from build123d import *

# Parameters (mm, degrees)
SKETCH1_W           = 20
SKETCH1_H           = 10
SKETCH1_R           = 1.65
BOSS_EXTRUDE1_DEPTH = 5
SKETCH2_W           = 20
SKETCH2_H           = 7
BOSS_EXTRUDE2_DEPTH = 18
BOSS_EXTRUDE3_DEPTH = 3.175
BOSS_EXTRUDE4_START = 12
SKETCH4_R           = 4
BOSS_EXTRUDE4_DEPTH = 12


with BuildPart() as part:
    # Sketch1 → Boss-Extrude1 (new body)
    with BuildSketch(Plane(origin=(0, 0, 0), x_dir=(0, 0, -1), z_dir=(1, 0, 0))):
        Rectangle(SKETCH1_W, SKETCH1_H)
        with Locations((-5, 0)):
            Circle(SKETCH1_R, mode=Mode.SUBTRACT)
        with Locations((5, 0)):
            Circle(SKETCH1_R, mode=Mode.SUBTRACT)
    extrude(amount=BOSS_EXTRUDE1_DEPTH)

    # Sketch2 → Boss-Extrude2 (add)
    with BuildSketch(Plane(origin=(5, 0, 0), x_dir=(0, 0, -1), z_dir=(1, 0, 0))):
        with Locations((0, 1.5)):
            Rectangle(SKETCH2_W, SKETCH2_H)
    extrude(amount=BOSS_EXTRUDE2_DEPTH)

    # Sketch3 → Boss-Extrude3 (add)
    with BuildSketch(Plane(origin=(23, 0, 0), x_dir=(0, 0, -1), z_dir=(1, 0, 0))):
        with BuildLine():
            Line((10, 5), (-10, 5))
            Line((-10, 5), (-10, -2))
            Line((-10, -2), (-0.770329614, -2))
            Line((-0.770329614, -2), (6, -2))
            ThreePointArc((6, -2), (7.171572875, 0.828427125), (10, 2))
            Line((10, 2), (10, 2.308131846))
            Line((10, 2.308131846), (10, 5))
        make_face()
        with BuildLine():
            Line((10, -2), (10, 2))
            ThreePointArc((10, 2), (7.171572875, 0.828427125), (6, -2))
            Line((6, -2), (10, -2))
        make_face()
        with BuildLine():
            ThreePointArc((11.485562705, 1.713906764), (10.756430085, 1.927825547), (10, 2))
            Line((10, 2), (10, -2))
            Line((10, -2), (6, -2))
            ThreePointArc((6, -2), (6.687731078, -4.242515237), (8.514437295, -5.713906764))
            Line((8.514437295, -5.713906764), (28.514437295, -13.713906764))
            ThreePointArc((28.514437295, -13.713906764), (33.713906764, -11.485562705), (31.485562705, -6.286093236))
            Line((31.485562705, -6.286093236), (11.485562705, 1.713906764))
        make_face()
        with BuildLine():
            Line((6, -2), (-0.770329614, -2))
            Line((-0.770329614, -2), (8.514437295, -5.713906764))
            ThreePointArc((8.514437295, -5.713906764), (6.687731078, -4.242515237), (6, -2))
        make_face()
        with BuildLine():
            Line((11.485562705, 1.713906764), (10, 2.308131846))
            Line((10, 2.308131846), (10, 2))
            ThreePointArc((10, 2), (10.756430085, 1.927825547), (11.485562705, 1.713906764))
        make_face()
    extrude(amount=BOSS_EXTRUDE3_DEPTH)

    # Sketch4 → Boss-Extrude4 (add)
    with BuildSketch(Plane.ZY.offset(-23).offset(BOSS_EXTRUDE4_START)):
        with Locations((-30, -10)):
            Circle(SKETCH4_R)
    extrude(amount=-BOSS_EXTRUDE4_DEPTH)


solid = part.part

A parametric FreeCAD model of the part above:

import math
import FreeCAD as App
import Part
import Sketcher

V = App.Vector
Q = App.Units.Quantity


def add_polygon(sketch, points):
    """Adds a closed chain of lines whose ends are joined by coincident constraints."""
    first, n = sketch.GeometryCount, len(points)
    for a, b in zip(points, points[1:] + points[:1]):
        sketch.addGeometry(Part.LineSegment(App.Vector(*a, 0), App.Vector(*b, 0)), False)
    for i in range(n):
        sketch.addConstraint(Sketcher.Constraint("Coincident", first + i, 2, first + (i + 1) % n, 1))

doc = App.newDocument("Part")
body = doc.addObject("PartDesign::Body", "Body")

# Sketch on YZ plane
sketch1 = body.newObject("Sketcher::SketchObject", "Sketch")
sketch1.AttachmentSupport = (doc.getObject("YZ_Plane"), [""])
sketch1.MapMode = "FlatFace"
add_polygon(sketch1, [(5, 10), (-5, 10), (-5, -10), (5, -10)])  # lines 0-3
sketch1.addGeometry(Part.Circle(V(0, 5, 0), V(0, 0, 1), 1.6), False)  # 4
sketch1.addGeometry(Part.Circle(V(0, -5, 0), V(0, 0, 1), 1.6), False)  # 5
sketch1.addConstraint(Sketcher.Constraint("Horizontal", 0))
sketch1.addConstraint(Sketcher.Constraint("Vertical", 1))
sketch1.addConstraint(Sketcher.Constraint("Horizontal", 2))
sketch1.addConstraint(Sketcher.Constraint("Vertical", 3))
sketch1.addConstraint(Sketcher.Constraint("Equal", 4, 5))
sketch1.addConstraint(Sketcher.Constraint("Symmetric", 4, 3, 5, 3, -1, 1))
sketch1.addConstraint(Sketcher.Constraint("Symmetric", 0, 2, 2, 2, -1, 1))
sketch1.addConstraint(Sketcher.Constraint("PointOnObject", 4, 3, -2))
sketch1.addConstraint(Sketcher.Constraint("Diameter", 4, Q("3.3 mm")))
sketch1.addConstraint(Sketcher.Constraint("DistanceX", 0, 2, 0, 1, Q("10 mm")))
sketch1.addConstraint(Sketcher.Constraint("DistanceY", 1, 2, 1, 1, Q("20 mm")))
sketch1.addConstraint(Sketcher.Constraint("DistanceY", -1, 1, 4, 3, Q("5 mm")))
pad1 = body.newObject("PartDesign::Pad", "Pad")
pad1.Profile = sketch1
pad1.Length = 5

# Sketch on YZ plane
sketch2 = body.newObject("Sketcher::SketchObject", "Sketch001")
sketch2.AttachmentSupport = (doc.getObject("YZ_Plane"), [""])
sketch2.MapMode = "FlatFace"
sketch2.AttachmentOffset = App.Placement(V(0, 0, 5), App.Rotation())
add_polygon(sketch2, [(5, 10), (-2, 10), (-2, -10), (5, -10)])  # lines 0-3
sketch2.addConstraint(Sketcher.Constraint("Horizontal", 0))
sketch2.addConstraint(Sketcher.Constraint("Vertical", 1))
sketch2.addConstraint(Sketcher.Constraint("Horizontal", 2))
sketch2.addConstraint(Sketcher.Constraint("Vertical", 3))
sketch2.addConstraint(Sketcher.Constraint("DistanceX", 0, 2, 0, 1, Q("7 mm")))
sketch2.addConstraint(Sketcher.Constraint("DistanceY", 1, 2, 1, 1, Q("20 mm")))
sketch2.addConstraint(Sketcher.Constraint("DistanceX", 0, 2, -1, 1, Q("2 mm")))
sketch2.addConstraint(Sketcher.Constraint("DistanceY", -1, 1, 0, 2, Q("10 mm")))
pad2 = body.newObject("PartDesign::Pad", "Pad001")
pad2.Profile = sketch2
pad2.Length = 18

# Sketch on YZ plane
sketch3 = body.newObject("Sketcher::SketchObject", "Sketch002")
sketch3.AttachmentSupport = (doc.getObject("YZ_Plane"), [""])
sketch3.MapMode = "FlatFace"
sketch3.AttachmentOffset = App.Placement(V(0, 0, 23), App.Rotation())
sketch3.addGeometry(Part.LineSegment(V(5, -10, 0), V(5, 10, 0)), False)
sketch3.addGeometry(Part.LineSegment(V(5, 10, 0), V(-2, 10, 0)), False)
sketch3.addGeometry(Part.LineSegment(V(-2, 10, 0), V(-2, 0.8, 0)), False)
sketch3.addGeometry(Part.LineSegment(V(-2, 0.8, 0), V(-5.7, -8.5, 0)), False)
sketch3.addGeometry(Part.LineSegment(V(-5.7, -8.5, 0), V(-13.7, -28.5, 0)), False)
sketch3.addGeometry(Part.ArcOfCircle(Part.Circle(V(-10, -30, 0), V(0, 0, 1), 4), math.radians(158), math.radians(338)), False)
sketch3.addGeometry(Part.LineSegment(V(-6.3, -31.5, 0), V(2.3, -10, 0)), False)
sketch3.addGeometry(Part.LineSegment(V(2.3, -10, 0), V(5, -10, 0)), False)
sketch3.addConstraint(Sketcher.Constraint("Coincident", 0, 2, 1, 1))
sketch3.addConstraint(Sketcher.Constraint("Coincident", 1, 2, 2, 1))
sketch3.addConstraint(Sketcher.Constraint("Coincident", 2, 2, 3, 1))
sketch3.addConstraint(Sketcher.Constraint("Coincident", 3, 2, 4, 1))
sketch3.addConstraint(Sketcher.Constraint("Tangent", 4, 2, 5, 1))
sketch3.addConstraint(Sketcher.Constraint("Tangent", 5, 2, 6, 1))
sketch3.addConstraint(Sketcher.Constraint("Coincident", 6, 2, 7, 1))
sketch3.addConstraint(Sketcher.Constraint("Coincident", 7, 2, 0, 1))
sketch3.addConstraint(Sketcher.Constraint("Vertical", 0))
sketch3.addConstraint(Sketcher.Constraint("Horizontal", 1))
sketch3.addConstraint(Sketcher.Constraint("Vertical", 2))
sketch3.addConstraint(Sketcher.Constraint("Horizontal", 7))
sketch3.addConstraint(Sketcher.Constraint("Parallel", 3, 4))
sketch3.addConstraint(Sketcher.Constraint("Parallel", 4, 6))
sketch3.addConstraint(Sketcher.Constraint("Radius", 5, Q("4 mm")))
sketch3.addConstraint(Sketcher.Constraint("DistanceX", 1, 2, 1, 1, Q("7 mm")))
sketch3.addConstraint(Sketcher.Constraint("DistanceY", 0, 1, 0, 2, Q("20 mm")))
sketch3.addConstraint(Sketcher.Constraint("Distance", 3, Q("10 mm")))
sketch3.addConstraint(Sketcher.Constraint("DistanceX", 5, 3, -1, 1, Q("10 mm")))
sketch3.addConstraint(Sketcher.Constraint("DistanceY", 5, 3, -1, 1, Q("30 mm")))
sketch3.addConstraint(Sketcher.Constraint("DistanceX", -1, 1, 0, 2, Q("5 mm")))
sketch3.addConstraint(Sketcher.Constraint("DistanceY", -1, 1, 0, 2, Q("10 mm")))
sketch3.addConstraint(Sketcher.Constraint("DistanceX", 4, 2, 3, 2, Q("8 mm")))
pad3 = body.newObject("PartDesign::Pad", "Pad002")
pad3.Profile = sketch3
pad3.Length = 3.175

# Sketch on YZ plane
sketch4 = body.newObject("Sketcher::SketchObject", "Sketch003")
sketch4.AttachmentSupport = (doc.getObject("YZ_Plane"), [""])
sketch4.MapMode = "FlatFace"
sketch4.AttachmentOffset = App.Placement(V(0, 0, 11), App.Rotation())
sketch4.addGeometry(Part.Circle(V(-10, -30, 0), V(0, 0, 1), 4), False)
sketch4.addConstraint(Sketcher.Constraint("Diameter", 0, Q("8 mm")))
sketch4.addConstraint(Sketcher.Constraint("DistanceX", 0, 3, -1, 1, Q("10 mm")))
sketch4.addConstraint(Sketcher.Constraint("DistanceY", 0, 3, -1, 1, Q("30 mm")))
pad4 = body.newObject("PartDesign::Pad", "Pad003")
pad4.Profile = sketch4
pad4.Length = 12

doc.recompute()
